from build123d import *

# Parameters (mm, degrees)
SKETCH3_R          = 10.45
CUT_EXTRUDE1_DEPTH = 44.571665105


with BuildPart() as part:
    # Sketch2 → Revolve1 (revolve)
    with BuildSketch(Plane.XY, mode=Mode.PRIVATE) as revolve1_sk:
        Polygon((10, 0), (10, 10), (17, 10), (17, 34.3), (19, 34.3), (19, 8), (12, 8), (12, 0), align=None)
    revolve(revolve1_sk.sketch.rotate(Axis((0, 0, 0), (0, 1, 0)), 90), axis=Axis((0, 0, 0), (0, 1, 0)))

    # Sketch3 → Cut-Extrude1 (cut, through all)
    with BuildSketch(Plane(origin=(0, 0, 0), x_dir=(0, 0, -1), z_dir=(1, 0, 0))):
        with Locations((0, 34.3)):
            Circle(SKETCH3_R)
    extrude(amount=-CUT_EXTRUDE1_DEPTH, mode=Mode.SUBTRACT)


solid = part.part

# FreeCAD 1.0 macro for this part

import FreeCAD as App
import Part
import Sketcher

V = App.Vector
Q = App.Units.Quantity


def add_polygon(sketch, points):
    """Adds a closed chain of lines whose ends are joined by coincident constraints."""
    first, n = sketch.GeometryCount, len(points)
    for a, b in zip(points, points[1:] + points[:1]):
        sketch.addGeometry(Part.LineSegment(App.Vector(*a, 0), App.Vector(*b, 0)), False)
    for i in range(n):
        sketch.addConstraint(Sketcher.Constraint("Coincident", first + i, 2, first + (i + 1) % n, 1))

doc = App.newDocument("Part")
body = doc.addObject("PartDesign::Body", "Body")

# Sketch on XY plane
sketch1 = body.newObject("Sketcher::SketchObject", "Sketch")
sketch1.AttachmentSupport = (doc.getObject("XY_Plane"), [""])
sketch1.MapMode = "FlatFace"
add_polygon(sketch1, [(10, 10), (10, 0), (12, 0), (12, 8), (19, 8), (19, 34.3), (17, 34.3), (17, 10)])  # lines 0-7
sketch1.addConstraint([
    Sketcher.Constraint("Vertical", 0),
    Sketcher.Constraint("Horizontal", 1),
    Sketcher.Constraint("Vertical", 2),
    Sketcher.Constraint("Horizontal", 3),
    Sketcher.Constraint("Vertical", 4),
    Sketcher.Constraint("Horizontal", 5),
    Sketcher.Constraint("Vertical", 6),
    Sketcher.Constraint("Horizontal", 7),
    Sketcher.Constraint("PointOnObject", 0, 2, -1),
    Sketcher.Constraint("Equal", 1, 5),
    Sketcher.Constraint("DistanceX", 1, 1, 1, 2, Q("2 mm")),
    Sketcher.Constraint("DistanceX", 3, 1, 3, 2, Q("7 mm")),
    Sketcher.Constraint("DistanceY", 0, 2, 0, 1, Q("10 mm")),
    Sketcher.Constraint("DistanceY", 2, 1, 2, 2, Q("8 mm")),
    Sketcher.Constraint("DistanceY", 4, 1, 4, 2, Q("26.3 mm")),
    Sketcher.Constraint("DistanceX", -1, 1, 0, 2, Q("10 mm")),
])
revolution = body.newObject("PartDesign::Revolution", "Revolution")
revolution.Profile = sketch1
revolution.ReferenceAxis = (sketch1, ["V_Axis"])
revolution.Angle = 360

# Sketch on YZ plane
sketch2 = body.newObject("Sketcher::SketchObject", "Sketch001")
sketch2.AttachmentSupport = (doc.getObject("YZ_Plane"), [""])
sketch2.MapMode = "FlatFace"
sketch2.addGeometry(Part.Circle(V(34.3, 0, 0), V(0, 0, 1), 10.45), False)
sketch2.addConstraint([
    Sketcher.Constraint("PointOnObject", 0, 3, -1),
    Sketcher.Constraint("Diameter", 0, Q("20.9 mm")),
    Sketcher.Constraint("DistanceX", -1, 1, 0, 3, Q("34.3 mm")),
])
pocket1 = body.newObject("PartDesign::Pocket", "Pocket")
pocket1.Profile = sketch2
pocket1.Type = "ThroughAll"

doc.recompute()
